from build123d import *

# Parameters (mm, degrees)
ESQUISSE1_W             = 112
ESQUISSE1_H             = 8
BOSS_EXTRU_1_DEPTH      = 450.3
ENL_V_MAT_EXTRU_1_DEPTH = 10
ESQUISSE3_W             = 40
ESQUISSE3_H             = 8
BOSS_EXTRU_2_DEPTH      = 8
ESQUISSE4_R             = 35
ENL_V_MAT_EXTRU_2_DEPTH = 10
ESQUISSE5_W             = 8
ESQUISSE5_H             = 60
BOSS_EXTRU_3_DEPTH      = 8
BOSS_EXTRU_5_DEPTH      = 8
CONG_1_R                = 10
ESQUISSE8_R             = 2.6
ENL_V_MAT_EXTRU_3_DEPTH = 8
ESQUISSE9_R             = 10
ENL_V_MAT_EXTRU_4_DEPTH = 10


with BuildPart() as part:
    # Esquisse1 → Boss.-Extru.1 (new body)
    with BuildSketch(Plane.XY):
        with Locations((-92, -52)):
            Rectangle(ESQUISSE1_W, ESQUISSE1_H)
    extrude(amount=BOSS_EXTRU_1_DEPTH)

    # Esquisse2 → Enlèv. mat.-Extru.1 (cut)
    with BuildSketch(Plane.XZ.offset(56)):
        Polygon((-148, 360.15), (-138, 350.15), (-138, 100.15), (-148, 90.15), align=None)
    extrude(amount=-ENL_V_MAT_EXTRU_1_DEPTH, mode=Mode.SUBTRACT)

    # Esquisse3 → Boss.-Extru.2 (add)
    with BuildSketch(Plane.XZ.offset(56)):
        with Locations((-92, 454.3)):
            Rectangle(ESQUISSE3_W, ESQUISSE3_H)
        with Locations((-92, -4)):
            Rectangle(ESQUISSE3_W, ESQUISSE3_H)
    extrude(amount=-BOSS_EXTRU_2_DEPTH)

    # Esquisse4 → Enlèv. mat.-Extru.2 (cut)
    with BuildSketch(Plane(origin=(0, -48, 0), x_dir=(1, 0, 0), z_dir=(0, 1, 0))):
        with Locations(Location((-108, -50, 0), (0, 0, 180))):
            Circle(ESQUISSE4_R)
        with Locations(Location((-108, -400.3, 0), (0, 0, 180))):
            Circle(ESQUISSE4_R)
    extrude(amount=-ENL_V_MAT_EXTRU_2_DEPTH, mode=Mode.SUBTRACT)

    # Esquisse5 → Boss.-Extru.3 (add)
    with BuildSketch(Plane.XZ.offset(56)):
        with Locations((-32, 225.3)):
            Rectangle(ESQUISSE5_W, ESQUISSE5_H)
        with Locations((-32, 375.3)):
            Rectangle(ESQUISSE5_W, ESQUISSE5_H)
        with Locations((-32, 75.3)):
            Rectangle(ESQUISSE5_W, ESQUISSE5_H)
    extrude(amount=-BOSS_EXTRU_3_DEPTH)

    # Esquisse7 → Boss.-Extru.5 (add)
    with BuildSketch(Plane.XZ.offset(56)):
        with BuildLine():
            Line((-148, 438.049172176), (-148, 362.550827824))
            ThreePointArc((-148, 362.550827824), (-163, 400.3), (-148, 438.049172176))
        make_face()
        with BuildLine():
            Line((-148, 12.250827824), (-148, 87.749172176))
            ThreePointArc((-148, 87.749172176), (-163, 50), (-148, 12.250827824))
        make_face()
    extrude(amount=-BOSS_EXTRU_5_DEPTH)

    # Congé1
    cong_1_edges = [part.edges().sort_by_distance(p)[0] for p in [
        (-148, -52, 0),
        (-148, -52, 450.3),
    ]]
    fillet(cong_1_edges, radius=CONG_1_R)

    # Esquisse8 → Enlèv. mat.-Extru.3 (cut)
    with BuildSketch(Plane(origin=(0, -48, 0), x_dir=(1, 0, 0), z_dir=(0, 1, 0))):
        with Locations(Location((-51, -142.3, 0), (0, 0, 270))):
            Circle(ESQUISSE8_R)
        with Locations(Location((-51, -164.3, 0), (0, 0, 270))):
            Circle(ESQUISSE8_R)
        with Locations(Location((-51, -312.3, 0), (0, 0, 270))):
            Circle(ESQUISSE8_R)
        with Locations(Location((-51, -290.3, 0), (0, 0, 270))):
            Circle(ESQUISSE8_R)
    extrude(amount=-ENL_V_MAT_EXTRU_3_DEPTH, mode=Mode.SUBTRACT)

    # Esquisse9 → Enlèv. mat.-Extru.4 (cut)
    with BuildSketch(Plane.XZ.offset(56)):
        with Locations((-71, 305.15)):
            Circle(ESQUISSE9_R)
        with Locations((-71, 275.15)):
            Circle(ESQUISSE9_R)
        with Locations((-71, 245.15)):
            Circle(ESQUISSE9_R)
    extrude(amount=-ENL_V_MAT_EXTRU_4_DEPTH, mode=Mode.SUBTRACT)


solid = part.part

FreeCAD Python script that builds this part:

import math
import FreeCAD as App
import Part
import Sketcher

V = App.Vector
Q = App.Units.Quantity


def edges_at(feature, points):
    """Names of the edges that pass closest to the given points."""
    edges = feature.Shape.Edges
    near = lambda p: min(range(len(edges)), key=lambda i: edges[i].distToShape(Part.Vertex(*p))[0])
    return sorted({f"Edge{near(p) + 1}" for p in points})


def add_polygon(sketch, points):
    """Adds a closed chain of lines whose ends are joined by coincident constraints."""
    first, n = sketch.GeometryCount, len(points)
    for a, b in zip(points, points[1:] + points[:1]):
        sketch.addGeometry(Part.LineSegment(App.Vector(*a, 0), App.Vector(*b, 0)), False)
    for i in range(n):
        sketch.addConstraint(Sketcher.Constraint("Coincident", first + i, 2, first + (i + 1) % n, 1))

doc = App.newDocument("Part")
body = doc.addObject("PartDesign::Body", "Body")

sketch1 = body.newObject("Sketcher::SketchObject", "Sketch")
sketch1.AttachmentSupport = (doc.getObject("XY_Plane"), [""])
sketch1.MapMode = "FlatFace"
add_polygon(sketch1, [(-148, -48), (-148, -56), (-36, -56), (-36, -48)])
sketch1.addConstraint(Sketcher.Constraint("Vertical", 0))
sketch1.addConstraint(Sketcher.Constraint("Horizontal", 1))
sketch1.addConstraint(Sketcher.Constraint("Vertical", 2))
sketch1.addConstraint(Sketcher.Constraint("Horizontal", 3))
sketch1.addConstraint(Sketcher.Constraint("DistanceX", 1, 1, 1, 2, Q("112 mm")))
sketch1.addConstraint(Sketcher.Constraint("DistanceY", 0, 2, 0, 1, Q("8 mm")))
sketch1.addConstraint(Sketcher.Constraint("DistanceX", 0, 2, -1, 1, Q("148 mm")))
sketch1.addConstraint(Sketcher.Constraint("DistanceY", 0, 2, -1, 1, Q("56 mm")))
pad1 = body.newObject("PartDesign::Pad", "Pad")
pad1.Profile = sketch1
pad1.Length = 450.3

sketch2 = body.newObject("Sketcher::SketchObject", "Sketch001")
sketch2.AttachmentSupport = (doc.getObject("XZ_Plane"), [""])
sketch2.MapMode = "FlatFace"
sketch2.AttachmentOffset = App.Placement(V(0, 0, 56), App.Rotation())
add_polygon(sketch2, [(-138, 350.15), (-148, 360.15), (-148, 90.15), (-138, 100.15)])
sketch2.addConstraint(Sketcher.Constraint("Vertical", 1))
sketch2.addConstraint(Sketcher.Constraint("Vertical", 3))
sketch2.addConstraint(Sketcher.Constraint("Perpendicular", 0, 2))
sketch2.addConstraint(Sketcher.Constraint("Equal", 0, 2))
sketch2.addConstraint(Sketcher.Constraint("DistanceY", 1, 2, 1, 1, Q("270 mm")))
sketch2.addConstraint(Sketcher.Constraint("DistanceY", 3, 1, 3, 2, Q("250 mm")))
sketch2.addConstraint(Sketcher.Constraint("DistanceX", 0, 2, -1, 1, Q("148 mm")))
sketch2.addConstraint(Sketcher.Constraint("DistanceY", -1, 1, 0, 2, Q("360.15 mm")))
pocket1 = body.newObject("PartDesign::Pocket", "Pocket")
pocket1.Profile = sketch2
pocket1.Length = 10

sketch3 = body.newObject("Sketcher::SketchObject", "Sketch002")
sketch3.AttachmentSupport = (doc.getObject("XZ_Plane"), [""])
sketch3.MapMode = "FlatFace"
sketch3.AttachmentOffset = App.Placement(V(0, 0, 56), App.Rotation())
add_polygon(sketch3, [(-112, 458.3), (-112, 450.3), (-72, 450.3), (-72, 458.3)])
add_polygon(sketch3, [(-112, 0), (-112, -8), (-72, -8), (-72, 0)])
sketch3.addConstraint(Sketcher.Constraint("Vertical", 0))
sketch3.addConstraint(Sketcher.Constraint("Horizontal", 1))
sketch3.addConstraint(Sketcher.Constraint("Vertical", 2))
sketch3.addConstraint(Sketcher.Constraint("Horizontal", 3))
sketch3.addConstraint(Sketcher.Constraint("Vertical", 4))
sketch3.addConstraint(Sketcher.Constraint("Horizontal", 5))
sketch3.addConstraint(Sketcher.Constraint("Vertical", 6))
sketch3.addConstraint(Sketcher.Constraint("Horizontal", 7))
sketch3.addConstraint(Sketcher.Constraint("PointOnObject", 6, 2, -1))
sketch3.addConstraint(Sketcher.Constraint("Vertical", 3, 2, 4, 2))
sketch3.addConstraint(Sketcher.Constraint("Vertical", 2, 2, 5, 2))
sketch3.addConstraint(Sketcher.Constraint("Equal", 2, 4))
sketch3.addConstraint(Sketcher.Constraint("DistanceX", 1, 1, 1, 2, Q("40 mm")))
sketch3.addConstraint(Sketcher.Constraint("DistanceY", 0, 2, 0, 1, Q("8 mm")))
sketch3.addConstraint(Sketcher.Constraint("DistanceX", 0, 2, -1, 1, Q("112 mm")))
sketch3.addConstraint(Sketcher.Constraint("DistanceY", -1, 1, 0, 2, Q("450.3 mm")))
pad2 = body.newObject("PartDesign::Pad", "Pad001")
pad2.Profile = sketch3
pad2.Length = 8
pad2.Reversed = True

sketch4 = body.newObject("Sketcher::SketchObject", "Sketch003")
sketch4.AttachmentSupport = (doc.getObject("XZ_Plane"), [""])
sketch4.MapMode = "FlatFace"
sketch4.AttachmentOffset = App.Placement(V(0, 0, 48), App.Rotation())
sketch4.addGeometry(Part.Circle(V(-108, 50, 0), V(0, 0, 1), 35), False)
sketch4.addGeometry(Part.Circle(V(-108, 400.3, 0), V(0, 0, 1), 35), False)
sketch4.addConstraint(Sketcher.Constraint("Equal", 0, 1))
sketch4.addConstraint(Sketcher.Constraint("Vertical", 0, 3, 1, 3))
sketch4.addConstraint(Sketcher.Constraint("Diameter", 0, Q("70 mm")))
sketch4.addConstraint(Sketcher.Constraint("DistanceX", 0, 3, -1, 1, Q("108 mm")))
sketch4.addConstraint(Sketcher.Constraint("DistanceY", -1, 1, 0, 3, Q("50 mm")))
sketch4.addConstraint(Sketcher.Constraint("DistanceY", -1, 1, 1, 3, Q("400.3 mm")))
pocket2 = body.newObject("PartDesign::Pocket", "Pocket001")
pocket2.Profile = sketch4
pocket2.Length = 10
pocket2.Reversed = True

sketch5 = body.newObject("Sketcher::SketchObject", "Sketch004")
sketch5.AttachmentSupport = (doc.getObject("XZ_Plane"), [""])
sketch5.MapMode = "FlatFace"
sketch5.AttachmentOffset = App.Placement(V(0, 0, 56), App.Rotation())
add_polygon(sketch5, [(-36, 255.3), (-36, 195.3), (-28, 195.3), (-28, 255.3)])
add_polygon(sketch5, [(-36, 405.3), (-36, 345.3), (-28, 345.3), (-28, 405.3)])
add_polygon(sketch5, [(-36, 105.3), (-36, 45.3), (-28, 45.3), (-28, 105.3)])
sketch5.addConstraint(Sketcher.Constraint("Vertical", 0))
sketch5.addConstraint(Sketcher.Constraint("Horizontal", 1))
sketch5.addConstraint(Sketcher.Constraint("Vertical", 2))
sketch5.addConstraint(Sketcher.Constraint("Horizontal", 3))
sketch5.addConstraint(Sketcher.Constraint("Vertical", 4))
sketch5.addConstraint(Sketcher.Constraint("Horizontal", 5))
sketch5.addConstraint(Sketcher.Constraint("Vertical", 6))
sketch5.addConstraint(Sketcher.Constraint("Horizontal", 7))
sketch5.addConstraint(Sketcher.Constraint("Vertical", 8))
sketch5.addConstraint(Sketcher.Constraint("Horizontal", 9))
sketch5.addConstraint(Sketcher.Constraint("Vertical", 10))
sketch5.addConstraint(Sketcher.Constraint("Horizontal", 11))
sketch5.addConstraint(Sketcher.Constraint("Vertical", 3, 2, 4, 2))
sketch5.addConstraint(Sketcher.Constraint("Vertical", 2, 2, 5, 2))
sketch5.addConstraint(Sketcher.Constraint("Vertical", 7, 2, 8, 2))
sketch5.addConstraint(Sketcher.Constraint("Vertical", 6, 2, 9, 2))
sketch5.addConstraint(Sketcher.Constraint("Equal", 2, 4))
sketch5.addConstraint(Sketcher.Constraint("Equal", 6, 8))
sketch5.addConstraint(Sketcher.Constraint("DistanceX", 1, 1, 1, 2, Q("8 mm")))
sketch5.addConstraint(Sketcher.Constraint("DistanceY", 0, 2, 0, 1, Q("60 mm")))
sketch5.addConstraint(Sketcher.Constraint("DistanceX", 0, 2, -1, 1, Q("36 mm")))
sketch5.addConstraint(Sketcher.Constraint("DistanceY", 3, 2, 4, 2, Q("90 mm")))
sketch5.addConstraint(Sketcher.Constraint("DistanceY", 8, 2, 0, 2, Q("150 mm")))
sketch5.addConstraint(Sketcher.Constraint("DistanceY", -1, 1, 0, 2, Q("195.3 mm")))
pad3 = body.newObject("PartDesign::Pad", "Pad002")
pad3.Profile = sketch5
pad3.Length = 8
pad3.Reversed = True

sketch6 = body.newObject("Sketcher::SketchObject", "Sketch005")
sketch6.AttachmentSupport = (doc.getObject("XZ_Plane"), [""])
sketch6.MapMode = "FlatFace"
sketch6.AttachmentOffset = App.Placement(V(0, 0, 56), App.Rotation())
sketch6.addGeometry(Part.LineSegment(V(-148, 362.550828, 0), V(-148, 438.049172, 0)), False)
sketch6.addGeometry(Part.ArcOfCircle(Part.Circle(V(-108, 400.3, 0), V(0, 0, 1), 55), math.radians(136.658242), math.radians(223.341758)), False)
sketch6.addGeometry(Part.LineSegment(V(-148, 12.250828, 0), V(-148, 87.749172, 0)), False)
sketch6.addGeometry(Part.ArcOfCircle(Part.Circle(V(-108, 50, 0), V(0, 0, 1), 55), math.radians(136.658242), math.radians(223.341758)), False)
sketch6.addConstraint(Sketcher.Constraint("Coincident", 0, 1, 1, 2))
sketch6.addConstraint(Sketcher.Constraint("Coincident", 1, 1, 0, 2))
sketch6.addConstraint(Sketcher.Constraint("Coincident", 2, 1, 3, 2))
sketch6.addConstraint(Sketcher.Constraint("Coincident", 3, 1, 2, 2))
sketch6.addConstraint(Sketcher.Constraint("Vertical", 0))
sketch6.addConstraint(Sketcher.Constraint("Vertical", 2))
sketch6.addConstraint(Sketcher.Constraint("Equal", 1, 3))
sketch6.addConstraint(Sketcher.Constraint("Vertical", 1, 3, 3, 3))
sketch6.addConstraint(Sketcher.Constraint("Vertical", 1, 1, 2, 1))
sketch6.addConstraint(Sketcher.Constraint("Radius", 1, Q("55 mm")))
sketch6.addConstraint(Sketcher.Constraint("DistanceX", 1, 3, -1, 1, Q("108 mm")))
sketch6.addConstraint(Sketcher.Constraint("DistanceY", -1, 1, 3, 3, Q("50 mm")))
sketch6.addConstraint(Sketcher.Constraint("DistanceX", 0, 1, -1, 1, Q("148 mm")))
sketch6.addConstraint(Sketcher.Constraint("DistanceY", -1, 1, 1, 3, Q("400.3 mm")))
pad4 = body.newObject("PartDesign::Pad", "Pad003")
pad4.Profile = sketch6
pad4.Length = 8
pad4.Reversed = True
doc.recompute()

fillet = body.newObject("PartDesign::Fillet", "Fillet")
fillet.Base = (pad4, edges_at(pad4, [(-148, -52, 0), (-148, -52, 450.3)]))
fillet.Radius = 10

sketch7 = body.newObject("Sketcher::SketchObject", "Sketch006")
sketch7.AttachmentSupport = (doc.getObject("XZ_Plane"), [""])
sketch7.MapMode = "FlatFace"
sketch7.AttachmentOffset = App.Placement(V(0, 0, 48), App.Rotation())
sketch7.addGeometry(Part.Circle(V(-51, 142.3, 0), V(0, 0, 1), 2.6), False)
sketch7.addGeometry(Part.Circle(V(-51, 164.3, 0), V(0, 0, 1), 2.6), False)
sketch7.addGeometry(Part.Circle(V(-51, 312.3, 0), V(0, 0, 1), 2.6), False)
sketch7.addGeometry(Part.Circle(V(-51, 290.3, 0), V(0, 0, 1), 2.6), False)
sketch7.addConstraint(Sketcher.Constraint("Equal", 0, 1))
sketch7.addConstraint(Sketcher.Constraint("Equal", 1, 2))
sketch7.addConstraint(Sketcher.Constraint("Equal", 2, 3))
sketch7.addConstraint(Sketcher.Constraint("Vertical", 0, 3, 1, 3))
sketch7.addConstraint(Sketcher.Constraint("Vertical", 1, 3, 2, 3))
sketch7.addConstraint(Sketcher.Constraint("Vertical", 2, 3, 3, 3))
sketch7.addConstraint(Sketcher.Constraint("Diameter", 0, Q("5.2 mm")))
sketch7.addConstraint(Sketcher.Constraint("DistanceX", 0, 3, -1, 1, Q("51 mm")))
sketch7.addConstraint(Sketcher.Constraint("DistanceY", 0, 3, 1, 3, Q("22 mm")))
sketch7.addConstraint(Sketcher.Constraint("DistanceY", 1, 3, 2, 3, Q("148 mm")))
sketch7.addConstraint(Sketcher.Constraint("DistanceY", 3, 3, 2, 3, Q("22 mm")))
sketch7.addConstraint(Sketcher.Constraint("DistanceY", -1, 1, 0, 3, Q("142.3 mm")))
pocket3 = body.newObject("PartDesign::Pocket", "Pocket002")
pocket3.Profile = sketch7
pocket3.Length = 8
pocket3.Reversed = True

sketch8 = body.newObject("Sketcher::SketchObject", "Sketch007")
sketch8.AttachmentSupport = (doc.getObject("XZ_Plane"), [""])
sketch8.MapMode = "FlatFace"
sketch8.AttachmentOffset = App.Placement(V(0, 0, 56), App.Rotation())
sketch8.addGeometry(Part.Circle(V(-71, 305.15, 0), V(0, 0, 1), 10), False)
sketch8.addGeometry(Part.Circle(V(-71, 275.15, 0), V(0, 0, 1), 10), False)
sketch8.addGeometry(Part.Circle(V(-71, 245.15, 0), V(0, 0, 1), 10), False)
sketch8.addConstraint(Sketcher.Constraint("Equal", 0, 1))
sketch8.addConstraint(Sketcher.Constraint("Equal", 1, 2))
sketch8.addConstraint(Sketcher.Constraint("Vertical", 0, 3, 1, 3))
sketch8.addConstraint(Sketcher.Constraint("Vertical", 1, 3, 2, 3))
sketch8.addConstraint(Sketcher.Constraint("Diameter", 0, Q("20 mm")))
sketch8.addConstraint(Sketcher.Constraint("DistanceX", 0, 3, -1, 1, Q("71 mm")))
sketch8.addConstraint(Sketcher.Constraint("DistanceY", 1, 3, 0, 3, Q("30 mm")))
sketch8.addConstraint(Sketcher.Constraint("DistanceY", 2, 3, 1, 3, Q("30 mm")))
sketch8.addConstraint(Sketcher.Constraint("DistanceY", -1, 1, 0, 3, Q("305.15 mm")))
pocket4 = body.newObject("PartDesign::Pocket", "Pocket003")
pocket4.Profile = sketch8
pocket4.Length = 10

doc.recompute()
